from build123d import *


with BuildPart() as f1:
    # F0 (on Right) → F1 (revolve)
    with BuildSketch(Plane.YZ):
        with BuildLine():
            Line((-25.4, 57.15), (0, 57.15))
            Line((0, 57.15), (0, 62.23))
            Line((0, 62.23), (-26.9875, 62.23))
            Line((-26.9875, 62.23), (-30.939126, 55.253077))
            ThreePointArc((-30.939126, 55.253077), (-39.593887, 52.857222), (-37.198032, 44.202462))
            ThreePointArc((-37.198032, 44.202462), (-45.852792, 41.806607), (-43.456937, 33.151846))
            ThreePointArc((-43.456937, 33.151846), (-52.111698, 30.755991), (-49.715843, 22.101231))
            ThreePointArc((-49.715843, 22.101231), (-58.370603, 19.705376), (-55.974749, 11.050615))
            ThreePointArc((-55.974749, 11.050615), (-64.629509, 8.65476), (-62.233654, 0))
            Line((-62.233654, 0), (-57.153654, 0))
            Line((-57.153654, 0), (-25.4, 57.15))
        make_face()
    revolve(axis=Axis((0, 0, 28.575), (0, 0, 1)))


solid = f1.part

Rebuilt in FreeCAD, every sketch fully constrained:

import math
import FreeCAD as App
import Part
import Sketcher
Q = App.Units.Quantity

doc = App.newDocument("Part")
body = doc.addObject("PartDesign::Body", "Body")

sketch1 = body.newObject("Sketcher::SketchObject", "Sketch")
sketch1.AttachmentSupport = (doc.getObject("YZ_Plane"), [""])
sketch1.MapMode = "FlatFace"
sketch1.addGeometry(Part.LineSegment(App.Vector(-25.4, 57.15, 0), App.Vector(0, 57.15, 0)), False)
sketch1.addGeometry(Part.LineSegment(App.Vector(0, 57.15, 0), App.Vector(0, 62.23, 0)), False)
sketch1.addGeometry(Part.LineSegment(App.Vector(0, 62.23, 0), App.Vector(-26.9875, 62.23, 0)), False)
sketch1.addGeometry(Part.LineSegment(App.Vector(-26.9875, 62.23, 0), App.Vector(-30.939126, 55.253077, 0)), False)
sketch1.addGeometry(Part.ArcOfCircle(Part.Circle(App.Vector(-34.068579, 49.72777, 0), App.Vector(0, 0, 1), 6.35), math.radians(60.47342), math.radians(240.473423)), False)
sketch1.addGeometry(Part.ArcOfCircle(Part.Circle(App.Vector(-40.327484, 38.677154, 0), App.Vector(0, 0, 1), 6.35), math.radians(60.473429), math.radians(240.473426)), False)
sketch1.addGeometry(Part.ArcOfCircle(Part.Circle(App.Vector(-46.58639, 27.626539, 0), App.Vector(0, 0, 1), 6.35), math.radians(60.47342), math.radians(240.473423)), False)
sketch1.addGeometry(Part.ArcOfCircle(Part.Circle(App.Vector(-52.845295, 16.575923, 0), App.Vector(0, 0, 1), 6.35), math.radians(60.473432), math.radians(240.473416)), False)
sketch1.addGeometry(Part.ArcOfCircle(Part.Circle(App.Vector(-59.104202, 5.525308, 0), App.Vector(0, 0, 1), 6.35), math.radians(60.473425), math.radians(240.473425)), False)
sketch1.addGeometry(Part.LineSegment(App.Vector(-62.233654, 0, 0), App.Vector(-57.153654, 0, 0)), False)
sketch1.addGeometry(Part.LineSegment(App.Vector(-57.153654, 0, 0), App.Vector(-25.4, 57.15, 0)), False)
sketch1.addConstraint(Sketcher.Constraint("Coincident", 0, 2, 1, 1))
sketch1.addConstraint(Sketcher.Constraint("Coincident", 1, 2, 2, 1))
sketch1.addConstraint(Sketcher.Constraint("Coincident", 2, 2, 3, 1))
sketch1.addConstraint(Sketcher.Constraint("Coincident", 3, 2, 4, 1))
sketch1.addConstraint(Sketcher.Constraint("Tangent", 4, 2, 5, 1))
sketch1.addConstraint(Sketcher.Constraint("Tangent", 5, 2, 6, 1))
sketch1.addConstraint(Sketcher.Constraint("Tangent", 6, 2, 7, 1))
sketch1.addConstraint(Sketcher.Constraint("Tangent", 7, 2, 8, 1))
sketch1.addConstraint(Sketcher.Constraint("Coincident", 8, 2, 9, 1))
sketch1.addConstraint(Sketcher.Constraint("Coincident", 9, 2, 10, 1))
sketch1.addConstraint(Sketcher.Constraint("Coincident", 10, 2, 0, 1))
sketch1.addConstraint(Sketcher.Constraint("Horizontal", 0))
sketch1.addConstraint(Sketcher.Constraint("Vertical", 1))
sketch1.addConstraint(Sketcher.Constraint("Horizontal", 2))
sketch1.addConstraint(Sketcher.Constraint("Horizontal", 9))
sketch1.addConstraint(Sketcher.Constraint("Equal", 4, 5))
sketch1.addConstraint(Sketcher.Constraint("Equal", 5, 6))
sketch1.addConstraint(Sketcher.Constraint("Equal", 6, 7))
sketch1.addConstraint(Sketcher.Constraint("Equal", 7, 8))
sketch1.addConstraint(Sketcher.Constraint("PointOnObject", 0, 2, -2))
sketch1.addConstraint(Sketcher.Constraint("PointOnObject", 8, 2, -1))
sketch1.addConstraint(Sketcher.Constraint("Equal", 9, 1))
sketch1.addConstraint(Sketcher.Constraint("DistanceX", 0, 1, 0, 2, Q("1 in")))
sketch1.addConstraint(Sketcher.Constraint("Radius", 4, Q("0.25 in")))
sketch1.addConstraint(Sketcher.Constraint("DistanceX", 9, 1, 9, 2, Q("0.2 in")))
sketch1.addConstraint(Sketcher.Constraint("DistanceX", 2, 2, 2, 1, Q("1.0625 in")))
sketch1.addConstraint(Sketcher.Constraint("DistanceY", -1, 1, 0, 2, Q("2.25 in")))
sketch1.addConstraint(Sketcher.Constraint("DistanceX", 8, 3, -1, 1, Q("59.104202 mm")))
sketch1.addConstraint(Sketcher.Constraint("Distance", 3, Q("8.018279 mm")))
sketch1.addConstraint(Sketcher.Constraint("DistanceX", 4, 3, -1, 1, Q("34.068579 mm")))
sketch1.addConstraint(Sketcher.Constraint("DistanceX", 6, 3, -1, 1, Q("46.58639 mm")))
sketch1.addConstraint(Sketcher.Constraint("DistanceX", 4, 2, -1, 1, Q("37.198032 mm")))
sketch1.addConstraint(Sketcher.Constraint("DistanceY", -1, 1, 6, 2, Q("22.101231 mm")))
sketch1.addConstraint(Sketcher.Constraint("DistanceX", 5, 3, 3, 2, Q("9.388358 mm")))
revolution = body.newObject("PartDesign::Revolution", "Revolution")
revolution.Profile = sketch1
revolution.ReferenceAxis = (sketch1, ["V_Axis"])
revolution.Angle = 360

doc.recompute()
